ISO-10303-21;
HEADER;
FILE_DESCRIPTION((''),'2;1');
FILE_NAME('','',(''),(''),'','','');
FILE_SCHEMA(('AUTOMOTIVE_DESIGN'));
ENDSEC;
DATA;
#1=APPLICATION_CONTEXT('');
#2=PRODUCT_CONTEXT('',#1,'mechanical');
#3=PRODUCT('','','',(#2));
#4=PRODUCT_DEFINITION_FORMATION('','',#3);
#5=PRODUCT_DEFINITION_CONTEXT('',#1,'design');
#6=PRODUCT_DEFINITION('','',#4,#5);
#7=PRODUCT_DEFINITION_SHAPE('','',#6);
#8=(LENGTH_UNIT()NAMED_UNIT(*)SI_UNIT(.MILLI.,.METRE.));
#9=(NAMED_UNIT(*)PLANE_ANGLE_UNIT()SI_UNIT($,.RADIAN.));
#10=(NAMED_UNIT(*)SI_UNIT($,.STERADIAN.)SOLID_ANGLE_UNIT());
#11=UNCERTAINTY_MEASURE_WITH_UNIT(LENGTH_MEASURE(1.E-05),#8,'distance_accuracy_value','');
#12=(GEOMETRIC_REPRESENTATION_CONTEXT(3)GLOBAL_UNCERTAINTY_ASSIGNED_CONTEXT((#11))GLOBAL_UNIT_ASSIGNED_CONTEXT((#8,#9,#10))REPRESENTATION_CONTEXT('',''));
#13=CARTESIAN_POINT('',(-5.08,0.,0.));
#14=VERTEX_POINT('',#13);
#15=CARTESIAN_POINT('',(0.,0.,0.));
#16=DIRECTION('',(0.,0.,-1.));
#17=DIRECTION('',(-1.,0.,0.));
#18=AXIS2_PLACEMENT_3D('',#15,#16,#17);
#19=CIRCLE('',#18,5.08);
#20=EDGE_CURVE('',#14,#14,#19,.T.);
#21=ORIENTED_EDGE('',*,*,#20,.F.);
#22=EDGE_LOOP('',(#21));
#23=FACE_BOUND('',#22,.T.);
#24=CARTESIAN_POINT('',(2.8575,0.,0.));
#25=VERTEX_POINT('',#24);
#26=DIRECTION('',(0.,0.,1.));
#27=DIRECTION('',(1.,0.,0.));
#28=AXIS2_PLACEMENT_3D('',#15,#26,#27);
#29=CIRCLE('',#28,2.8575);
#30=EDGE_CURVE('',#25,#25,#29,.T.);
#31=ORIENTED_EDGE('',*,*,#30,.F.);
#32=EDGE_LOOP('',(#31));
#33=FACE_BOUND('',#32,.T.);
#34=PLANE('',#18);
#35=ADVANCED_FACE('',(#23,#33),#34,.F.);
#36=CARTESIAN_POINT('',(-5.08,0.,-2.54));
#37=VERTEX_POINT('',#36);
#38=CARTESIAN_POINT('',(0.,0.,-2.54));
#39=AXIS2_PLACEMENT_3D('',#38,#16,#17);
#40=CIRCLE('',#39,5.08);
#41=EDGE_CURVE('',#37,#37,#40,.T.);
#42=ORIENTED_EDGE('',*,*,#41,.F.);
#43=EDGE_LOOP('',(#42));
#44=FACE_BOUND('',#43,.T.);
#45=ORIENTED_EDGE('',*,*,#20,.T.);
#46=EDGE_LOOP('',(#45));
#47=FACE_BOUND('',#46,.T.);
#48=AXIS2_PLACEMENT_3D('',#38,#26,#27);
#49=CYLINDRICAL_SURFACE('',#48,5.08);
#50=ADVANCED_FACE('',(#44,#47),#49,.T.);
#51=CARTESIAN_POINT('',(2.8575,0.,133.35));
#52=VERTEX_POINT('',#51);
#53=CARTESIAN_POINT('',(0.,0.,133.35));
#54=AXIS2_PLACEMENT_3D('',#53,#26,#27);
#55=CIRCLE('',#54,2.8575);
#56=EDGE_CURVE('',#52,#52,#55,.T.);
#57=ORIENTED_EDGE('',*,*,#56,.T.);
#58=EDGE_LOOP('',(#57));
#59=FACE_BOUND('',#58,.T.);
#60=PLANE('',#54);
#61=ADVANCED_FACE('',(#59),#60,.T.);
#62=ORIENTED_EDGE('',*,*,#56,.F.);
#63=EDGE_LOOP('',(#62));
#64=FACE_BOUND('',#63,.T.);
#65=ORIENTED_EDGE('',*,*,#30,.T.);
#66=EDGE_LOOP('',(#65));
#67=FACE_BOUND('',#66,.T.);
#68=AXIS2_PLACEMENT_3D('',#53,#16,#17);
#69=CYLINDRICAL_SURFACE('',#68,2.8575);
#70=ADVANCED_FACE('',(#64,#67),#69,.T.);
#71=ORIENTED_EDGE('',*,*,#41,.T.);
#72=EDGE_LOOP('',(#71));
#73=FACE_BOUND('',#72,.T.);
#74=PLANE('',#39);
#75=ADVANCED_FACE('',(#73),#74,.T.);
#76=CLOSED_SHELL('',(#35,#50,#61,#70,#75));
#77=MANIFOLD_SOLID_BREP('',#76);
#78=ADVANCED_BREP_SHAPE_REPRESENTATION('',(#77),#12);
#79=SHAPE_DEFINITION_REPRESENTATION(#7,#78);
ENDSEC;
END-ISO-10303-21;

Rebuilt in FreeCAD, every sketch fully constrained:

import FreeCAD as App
import Part
import Sketcher

V = App.Vector
Q = App.Units.Quantity

doc = App.newDocument("Part")
body = doc.addObject("PartDesign::Body", "Body")

# Sketch on XY plane
sketch1 = body.newObject("Sketcher::SketchObject", "Sketch")
sketch1.AttachmentSupport = (doc.getObject("XY_Plane"), [""])
sketch1.MapMode = "FlatFace"
sketch1.addGeometry(Part.Circle(V(0, 0, 0), V(0, 0, 1), 2.9), False)
sketch1.addConstraint([
    Sketcher.Constraint("Coincident", 0, 3, -1, 1),
    Sketcher.Constraint("Diameter", 0, Q("0.225 in")),
])
pad1 = body.newObject("PartDesign::Pad", "Pad")
pad1.Profile = sketch1
pad1.Length = Q("5.25 in")

# Sketch on XY plane
sketch2 = body.newObject("Sketcher::SketchObject", "Sketch001")
sketch2.AttachmentSupport = (doc.getObject("XY_Plane"), [""])
sketch2.MapMode = "FlatFace"
sketch2.addGeometry(Part.Circle(V(0, 0, 0), V(0, 0, 1), 5), False)
sketch2.addConstraint([
    Sketcher.Constraint("Coincident", 0, 3, -1, 1),
    Sketcher.Constraint("Diameter", 0, Q("0.4 in")),
])
pad2 = body.newObject("PartDesign::Pad", "Pad001")
pad2.Profile = sketch2
pad2.Length = Q("0.1 in")
pad2.Reversed = True

doc.recompute()
